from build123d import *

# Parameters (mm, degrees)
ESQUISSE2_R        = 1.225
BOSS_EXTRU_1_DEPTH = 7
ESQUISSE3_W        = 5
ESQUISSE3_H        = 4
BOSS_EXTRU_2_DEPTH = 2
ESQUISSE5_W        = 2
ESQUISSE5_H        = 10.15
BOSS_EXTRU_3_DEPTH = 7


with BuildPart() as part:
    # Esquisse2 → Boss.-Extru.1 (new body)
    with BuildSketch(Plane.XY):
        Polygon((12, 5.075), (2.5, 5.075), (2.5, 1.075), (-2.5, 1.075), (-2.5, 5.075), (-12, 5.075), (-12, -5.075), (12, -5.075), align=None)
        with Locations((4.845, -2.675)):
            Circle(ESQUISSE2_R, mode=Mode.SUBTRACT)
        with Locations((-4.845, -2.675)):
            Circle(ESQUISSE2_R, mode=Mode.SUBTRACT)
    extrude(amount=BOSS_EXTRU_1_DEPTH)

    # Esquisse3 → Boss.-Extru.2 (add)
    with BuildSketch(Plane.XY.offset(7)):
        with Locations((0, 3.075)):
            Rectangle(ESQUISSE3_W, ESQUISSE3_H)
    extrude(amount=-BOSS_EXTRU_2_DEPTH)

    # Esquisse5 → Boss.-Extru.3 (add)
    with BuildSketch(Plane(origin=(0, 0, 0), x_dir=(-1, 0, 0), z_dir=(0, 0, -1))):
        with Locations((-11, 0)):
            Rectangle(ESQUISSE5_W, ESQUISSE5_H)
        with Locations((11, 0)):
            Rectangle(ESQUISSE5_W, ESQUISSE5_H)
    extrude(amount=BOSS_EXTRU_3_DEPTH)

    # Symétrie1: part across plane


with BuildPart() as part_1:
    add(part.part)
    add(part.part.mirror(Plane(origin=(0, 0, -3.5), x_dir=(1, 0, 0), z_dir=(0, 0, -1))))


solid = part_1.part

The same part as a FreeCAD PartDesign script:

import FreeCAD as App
import Part
import Sketcher
Q = App.Units.Quantity

doc = App.newDocument("Part")
body = doc.addObject("PartDesign::Body", "Body")

# Sketch on XY plane
sketch1 = doc.addObject("Sketcher::SketchObject", "Sketch")
body.addObject(sketch1)
sketch1.AttachmentSupport = (doc.XY_Plane, [""])
sketch1.MapMode = "FlatFace"
sketch1.addGeometry(Part.LineSegment(App.Vector(12, 5.1, 0), App.Vector(2.5, 5.1, 0)), False)
sketch1.addGeometry(Part.LineSegment(App.Vector(2.5, 5.1, 0), App.Vector(2.5, 1.1, 0)), False)
sketch1.addGeometry(Part.LineSegment(App.Vector(2.5, 1.1, 0), App.Vector(-2.5, 1.1, 0)), False)
sketch1.addGeometry(Part.LineSegment(App.Vector(-2.5, 1.1, 0), App.Vector(-2.5, 5.1, 0)), False)
sketch1.addGeometry(Part.LineSegment(App.Vector(-2.5, 5.1, 0), App.Vector(-12, 5.1, 0)), False)
sketch1.addGeometry(Part.LineSegment(App.Vector(-12, 5.1, 0), App.Vector(-12, -5.1, 0)), False)
sketch1.addGeometry(Part.LineSegment(App.Vector(-12, -5.1, 0), App.Vector(12, -5.1, 0)), False)
sketch1.addGeometry(Part.LineSegment(App.Vector(12, -5.1, 0), App.Vector(12, 5.1, 0)), False)
sketch1.addGeometry(Part.Circle(App.Vector(-4.8, -2.7, 0), App.Vector(0, 0, 1), 1.2), False)
sketch1.addGeometry(Part.Circle(App.Vector(4.8, -2.7, 0), App.Vector(0, 0, 1), 1.2), False)
sketch1.addConstraint(Sketcher.Constraint("Coincident", 0, 2, 1, 1))
sketch1.addConstraint(Sketcher.Constraint("Coincident", 1, 2, 2, 1))
sketch1.addConstraint(Sketcher.Constraint("Coincident", 2, 2, 3, 1))
sketch1.addConstraint(Sketcher.Constraint("Coincident", 3, 2, 4, 1))
sketch1.addConstraint(Sketcher.Constraint("Coincident", 4, 2, 5, 1))
sketch1.addConstraint(Sketcher.Constraint("Coincident", 5, 2, 6, 1))
sketch1.addConstraint(Sketcher.Constraint("Coincident", 6, 2, 7, 1))
sketch1.addConstraint(Sketcher.Constraint("Coincident", 7, 2, 0, 1))
sketch1.addConstraint(Sketcher.Constraint("Horizontal", 0))
sketch1.addConstraint(Sketcher.Constraint("Vertical", 1))
sketch1.addConstraint(Sketcher.Constraint("Horizontal", 2))
sketch1.addConstraint(Sketcher.Constraint("Vertical", 3))
sketch1.addConstraint(Sketcher.Constraint("Horizontal", 4))
sketch1.addConstraint(Sketcher.Constraint("Vertical", 5))
sketch1.addConstraint(Sketcher.Constraint("Horizontal", 6))
sketch1.addConstraint(Sketcher.Constraint("Vertical", 7))
sketch1.addConstraint(Sketcher.Constraint("Equal", 8, 9))
sketch1.addConstraint(Sketcher.Constraint("Symmetric", 4, 2, 6, 2, -1, 1))
sketch1.addConstraint(Sketcher.Constraint("Symmetric", 8, 3, 9, 3, -2))
sketch1.addConstraint(Sketcher.Constraint("Symmetric", 0, 2, 3, 2, -2))
sketch1.addConstraint(Sketcher.Constraint("Diameter", 8, Q("2.45 mm")))
sketch1.addConstraint(Sketcher.Constraint("DistanceX", 2, 2, 2, 1, Q("5 mm")))
sketch1.addConstraint(Sketcher.Constraint("DistanceX", 6, 1, 6, 2, Q("24 mm")))
sketch1.addConstraint(Sketcher.Constraint("DistanceY", 1, 2, 1, 1, Q("4 mm")))
sketch1.addConstraint(Sketcher.Constraint("DistanceY", 5, 2, 5, 1, Q("10.15 mm")))
sketch1.addConstraint(Sketcher.Constraint("DistanceY", 5, 2, 8, 3, Q("2.4 mm")))
sketch1.addConstraint(Sketcher.Constraint("DistanceX", 8, 3, 9, 3, Q("9.69 mm")))
pad1 = doc.addObject("PartDesign::Pad", "Pad")
body.addObject(pad1)
pad1.Profile = sketch1
pad1.Length = 7

# Sketch on XY plane
sketch2 = doc.addObject("Sketcher::SketchObject", "Sketch001")
body.addObject(sketch2)
sketch2.AttachmentSupport = (doc.XY_Plane, [""])
sketch2.MapMode = "FlatFace"
sketch2.AttachmentOffset = App.Placement(App.Vector(0, 0, 7), App.Rotation())
sketch2.addGeometry(Part.LineSegment(App.Vector(-2.5, 5.1, 0), App.Vector(-2.5, 1.1, 0)), False)
sketch2.addGeometry(Part.LineSegment(App.Vector(-2.5, 1.1, 0), App.Vector(2.5, 1.1, 0)), False)
sketch2.addGeometry(Part.LineSegment(App.Vector(2.5, 1.1, 0), App.Vector(2.5, 5.1, 0)), False)
sketch2.addGeometry(Part.LineSegment(App.Vector(2.5, 5.1, 0), App.Vector(-2.5, 5.1, 0)), False)
sketch2.addConstraint(Sketcher.Constraint("Coincident", 0, 2, 1, 1))
sketch2.addConstraint(Sketcher.Constraint("Coincident", 1, 2, 2, 1))
sketch2.addConstraint(Sketcher.Constraint("Coincident", 2, 2, 3, 1))
sketch2.addConstraint(Sketcher.Constraint("Coincident", 3, 2, 0, 1))
sketch2.addConstraint(Sketcher.Constraint("Vertical", 0))
sketch2.addConstraint(Sketcher.Constraint("Horizontal", 1))
sketch2.addConstraint(Sketcher.Constraint("Vertical", 2))
sketch2.addConstraint(Sketcher.Constraint("Horizontal", 3))
sketch2.addConstraint(Sketcher.Constraint("DistanceX", 1, 1, 1, 2, Q("5 mm")))
sketch2.addConstraint(Sketcher.Constraint("DistanceY", 0, 2, 0, 1, Q("4 mm")))
sketch2.addConstraint(Sketcher.Constraint("DistanceX", 0, 2, -1, 1, Q("2.5 mm")))
sketch2.addConstraint(Sketcher.Constraint("DistanceY", -1, 1, 0, 2, Q("1.075 mm")))
pad2 = doc.addObject("PartDesign::Pad", "Pad001")
body.addObject(pad2)
pad2.Profile = sketch2
pad2.Length = 2
pad2.Reversed = True

# Sketch on XY plane
sketch3 = doc.addObject("Sketcher::SketchObject", "Sketch002")
body.addObject(sketch3)
sketch3.AttachmentSupport = (doc.XY_Plane, [""])
sketch3.MapMode = "FlatFace"
sketch3.addGeometry(Part.LineSegment(App.Vector(12, 5.1, 0), App.Vector(12, -5.1, 0)), False)
sketch3.addGeometry(Part.LineSegment(App.Vector(12, -5.1, 0), App.Vector(10, -5.1, 0)), False)
sketch3.addGeometry(Part.LineSegment(App.Vector(10, -5.1, 0), App.Vector(10, 5.1, 0)), False)
sketch3.addGeometry(Part.LineSegment(App.Vector(10, 5.1, 0), App.Vector(12, 5.1, 0)), False)
sketch3.addGeometry(Part.LineSegment(App.Vector(-10, 5.1, 0), App.Vector(-10, -5.1, 0)), False)
sketch3.addGeometry(Part.LineSegment(App.Vector(-10, -5.1, 0), App.Vector(-12, -5.1, 0)), False)
sketch3.addGeometry(Part.LineSegment(App.Vector(-12, -5.1, 0), App.Vector(-12, 5.1, 0)), False)
sketch3.addGeometry(Part.LineSegment(App.Vector(-12, 5.1, 0), App.Vector(-10, 5.1, 0)), False)
sketch3.addConstraint(Sketcher.Constraint("Coincident", 0, 2, 1, 1))
sketch3.addConstraint(Sketcher.Constraint("Coincident", 1, 2, 2, 1))
sketch3.addConstraint(Sketcher.Constraint("Coincident", 2, 2, 3, 1))
sketch3.addConstraint(Sketcher.Constraint("Coincident", 3, 2, 0, 1))
sketch3.addConstraint(Sketcher.Constraint("Coincident", 4, 2, 5, 1))
sketch3.addConstraint(Sketcher.Constraint("Coincident", 5, 2, 6, 1))
sketch3.addConstraint(Sketcher.Constraint("Coincident", 6, 2, 7, 1))
sketch3.addConstraint(Sketcher.Constraint("Coincident", 7, 2, 4, 1))
sketch3.addConstraint(Sketcher.Constraint("Vertical", 0))
sketch3.addConstraint(Sketcher.Constraint("Horizontal", 1))
sketch3.addConstraint(Sketcher.Constraint("Vertical", 2))
sketch3.addConstraint(Sketcher.Constraint("Horizontal", 3))
sketch3.addConstraint(Sketcher.Constraint("Vertical", 4))
sketch3.addConstraint(Sketcher.Constraint("Horizontal", 5))
sketch3.addConstraint(Sketcher.Constraint("Vertical", 6))
sketch3.addConstraint(Sketcher.Constraint("Horizontal", 7))
sketch3.addConstraint(Sketcher.Constraint("Symmetric", 2, 2, 4, 2, -1, 1))
sketch3.addConstraint(Sketcher.Constraint("Symmetric", 0, 2, 6, 2, -1, 1))
sketch3.addConstraint(Sketcher.Constraint("Horizontal", 1, 2, 4, 2))
sketch3.addConstraint(Sketcher.Constraint("DistanceX", 1, 2, 1, 1, Q("2 mm")))
sketch3.addConstraint(Sketcher.Constraint("DistanceX", -1, 1, 0, 2, Q("12 mm")))
sketch3.addConstraint(Sketcher.Constraint("DistanceY", 0, 2, 0, 1, Q("10.15 mm")))
pad3 = doc.addObject("PartDesign::Pad", "Pad002")
body.addObject(pad3)
pad3.Profile = sketch3
pad3.Length = 7
pad3.Reversed = True
body2 = doc.addObject("PartDesign::Body", "Body001")
doc.recompute()

body2.BaseFeature = body
doc.recompute()

mirroring = doc.addObject("Part::Mirroring", "Mirroring")
mirroring.Source = body
mirroring.Base = App.Vector(0, 0, -3.5)
mirroring.Normal = App.Vector(0, 0, -1)
body3 = doc.addObject("PartDesign::Body", "Body002")
body3.BaseFeature = mirroring
boolean = doc.addObject("PartDesign::Boolean", "Boolean")
body2.addObject(boolean)
boolean.Type = "Fuse"
boolean.addObjects([body3])
doc.recompute()
mirroring.Visibility = False

doc.recompute()
